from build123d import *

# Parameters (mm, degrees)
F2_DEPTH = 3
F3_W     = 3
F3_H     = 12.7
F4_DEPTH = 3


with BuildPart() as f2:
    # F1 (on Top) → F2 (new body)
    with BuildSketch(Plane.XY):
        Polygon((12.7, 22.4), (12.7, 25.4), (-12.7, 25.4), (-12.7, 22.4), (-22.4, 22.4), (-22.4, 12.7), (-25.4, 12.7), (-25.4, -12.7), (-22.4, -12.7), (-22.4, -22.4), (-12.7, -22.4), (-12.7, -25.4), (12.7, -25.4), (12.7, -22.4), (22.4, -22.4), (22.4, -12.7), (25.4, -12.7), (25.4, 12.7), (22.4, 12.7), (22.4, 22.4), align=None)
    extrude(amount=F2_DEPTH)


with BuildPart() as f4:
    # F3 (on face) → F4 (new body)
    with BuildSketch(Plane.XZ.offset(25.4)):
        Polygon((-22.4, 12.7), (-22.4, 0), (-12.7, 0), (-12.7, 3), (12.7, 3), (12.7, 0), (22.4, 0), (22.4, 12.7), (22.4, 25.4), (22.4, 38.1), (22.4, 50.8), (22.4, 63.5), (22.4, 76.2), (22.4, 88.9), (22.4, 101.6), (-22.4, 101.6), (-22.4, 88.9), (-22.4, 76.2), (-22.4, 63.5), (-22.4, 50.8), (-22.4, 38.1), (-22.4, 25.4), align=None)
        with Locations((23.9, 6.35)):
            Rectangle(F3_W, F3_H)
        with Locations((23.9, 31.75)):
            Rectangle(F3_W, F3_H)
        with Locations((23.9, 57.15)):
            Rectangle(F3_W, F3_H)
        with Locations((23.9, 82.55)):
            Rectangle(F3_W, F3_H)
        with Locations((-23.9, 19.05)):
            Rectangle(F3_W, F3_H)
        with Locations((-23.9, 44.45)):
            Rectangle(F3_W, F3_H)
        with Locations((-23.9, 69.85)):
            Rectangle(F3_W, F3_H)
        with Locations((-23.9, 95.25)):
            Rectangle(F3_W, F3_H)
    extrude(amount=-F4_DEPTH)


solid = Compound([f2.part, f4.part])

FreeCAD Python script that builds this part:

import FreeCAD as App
import Part
import Sketcher
from FreeCAD import Vector
Q = App.Units.Quantity

doc = App.newDocument("Part")
body = doc.addObject("PartDesign::Body", "Body")

sketch1 = doc.addObject("Sketcher::SketchObject", "Sketch")
body.addObject(sketch1)
sketch1.AttachmentSupport = (doc.XY_Plane, [""])
sketch1.MapMode = "FlatFace"
sketch1.addGeometry([
    Part.LineSegment(Vector(12.7, 22.4, 0), Vector(12.7, 25.4, 0)),
    Part.LineSegment(Vector(12.7, 25.4, 0), Vector(-12.7, 25.4, 0)),
    Part.LineSegment(Vector(-12.7, 25.4, 0), Vector(-12.7, 22.4, 0)),
    Part.LineSegment(Vector(-12.7, 22.4, 0), Vector(-22.4, 22.4, 0)),
    Part.LineSegment(Vector(-22.4, 22.4, 0), Vector(-22.4, 12.7, 0)),
    Part.LineSegment(Vector(-22.4, 12.7, 0), Vector(-25.4, 12.7, 0)),
    Part.LineSegment(Vector(-25.4, 12.7, 0), Vector(-25.4, -12.7, 0)),
    Part.LineSegment(Vector(-25.4, -12.7, 0), Vector(-22.4, -12.7, 0)),
    Part.LineSegment(Vector(-22.4, -12.7, 0), Vector(-22.4, -22.4, 0)),
    Part.LineSegment(Vector(-22.4, -22.4, 0), Vector(-12.7, -22.4, 0)),
    Part.LineSegment(Vector(-12.7, -22.4, 0), Vector(-12.7, -25.4, 0)),
    Part.LineSegment(Vector(-12.7, -25.4, 0), Vector(12.7, -25.4, 0)),
    Part.LineSegment(Vector(12.7, -25.4, 0), Vector(12.7, -22.4, 0)),
    Part.LineSegment(Vector(12.7, -22.4, 0), Vector(22.4, -22.4, 0)),
    Part.LineSegment(Vector(22.4, -22.4, 0), Vector(22.4, -12.7, 0)),
    Part.LineSegment(Vector(22.4, -12.7, 0), Vector(25.4, -12.7, 0)),
    Part.LineSegment(Vector(25.4, -12.7, 0), Vector(25.4, 12.7, 0)),
    Part.LineSegment(Vector(25.4, 12.7, 0), Vector(22.4, 12.7, 0)),
    Part.LineSegment(Vector(22.4, 12.7, 0), Vector(22.4, 22.4, 0)),
    Part.LineSegment(Vector(22.4, 22.4, 0), Vector(12.7, 22.4, 0)),
], False)
sketch1.addConstraint([
    Sketcher.Constraint("Coincident", 0, 2, 1, 1),
    Sketcher.Constraint("Coincident", 1, 2, 2, 1),
    Sketcher.Constraint("Coincident", 2, 2, 3, 1),
    Sketcher.Constraint("Coincident", 3, 2, 4, 1),
    Sketcher.Constraint("Coincident", 4, 2, 5, 1),
    Sketcher.Constraint("Coincident", 5, 2, 6, 1),
    Sketcher.Constraint("Coincident", 6, 2, 7, 1),
    Sketcher.Constraint("Coincident", 7, 2, 8, 1),
    Sketcher.Constraint("Coincident", 8, 2, 9, 1),
    Sketcher.Constraint("Coincident", 9, 2, 10, 1),
    Sketcher.Constraint("Coincident", 10, 2, 11, 1),
    Sketcher.Constraint("Coincident", 11, 2, 12, 1),
    Sketcher.Constraint("Coincident", 12, 2, 13, 1),
    Sketcher.Constraint("Coincident", 13, 2, 14, 1),
    Sketcher.Constraint("Coincident", 14, 2, 15, 1),
    Sketcher.Constraint("Coincident", 15, 2, 16, 1),
    Sketcher.Constraint("Coincident", 16, 2, 17, 1),
    Sketcher.Constraint("Coincident", 17, 2, 18, 1),
    Sketcher.Constraint("Coincident", 18, 2, 19, 1),
    Sketcher.Constraint("Coincident", 19, 2, 0, 1),
    Sketcher.Constraint("Vertical", 0),
    Sketcher.Constraint("Horizontal", 1),
    Sketcher.Constraint("Vertical", 2),
    Sketcher.Constraint("Horizontal", 3),
    Sketcher.Constraint("Vertical", 4),
    Sketcher.Constraint("Horizontal", 5),
    Sketcher.Constraint("Vertical", 6),
    Sketcher.Constraint("Horizontal", 7),
    Sketcher.Constraint("Vertical", 8),
    Sketcher.Constraint("Horizontal", 9),
    Sketcher.Constraint("Vertical", 10),
    Sketcher.Constraint("Horizontal", 11),
    Sketcher.Constraint("Vertical", 12),
    Sketcher.Constraint("Horizontal", 13),
    Sketcher.Constraint("Vertical", 14),
    Sketcher.Constraint("Horizontal", 15),
    Sketcher.Constraint("Vertical", 16),
    Sketcher.Constraint("Horizontal", 17),
    Sketcher.Constraint("Vertical", 18),
    Sketcher.Constraint("Horizontal", 19),
    Sketcher.Constraint("Symmetric", 0, 2, 10, 2, -1, 1),
    Sketcher.Constraint("Symmetric", 2, 2, 12, 2, -1, 1),
    Sketcher.Constraint("Symmetric", 4, 2, 14, 2, -1, 1),
    Sketcher.Constraint("Symmetric", 6, 2, 16, 2, -1, 1),
    Sketcher.Constraint("Symmetric", 8, 2, 18, 2, -1, 1),
    Sketcher.Constraint("Symmetric", 9, 2, 12, 2, -2),
    Sketcher.Constraint("Symmetric", 7, 2, 14, 2, -2),
    Sketcher.Constraint("Equal", 17, 0),
    Sketcher.Constraint("Equal", 19, 4),
    Sketcher.Constraint("Equal", 11, 6),
    Sketcher.Constraint("DistanceX", 5, 2, 5, 1, Q("3 mm")),
    Sketcher.Constraint("DistanceX", 1, 2, 1, 1, Q("25.4 mm")),
    Sketcher.Constraint("DistanceX", 3, 2, 3, 1, Q("9.7 mm")),
])
pad1 = doc.addObject("PartDesign::Pad", "Pad")
body.addObject(pad1)
pad1.Profile = sketch1
pad1.Length = 3
body2 = doc.addObject("PartDesign::Body", "Body001")

sketch2 = doc.addObject("Sketcher::SketchObject", "Sketch001")
body2.addObject(sketch2)
sketch2.AttachmentSupport = (doc.getObject("XZ_Plane001"), [""])
sketch2.MapMode = "FlatFace"
sketch2.AttachmentOffset = App.Placement(Vector(0, 0, 25.4), App.Rotation())
sketch2.addGeometry([
    Part.LineSegment(Vector(-22.4, 0, 0), Vector(-12.7, 0, 0)),
    Part.LineSegment(Vector(-12.7, 0, 0), Vector(-12.7, 3, 0)),
    Part.LineSegment(Vector(-12.7, 3, 0), Vector(12.7, 3, 0)),
    Part.LineSegment(Vector(12.7, 3, 0), Vector(12.7, 0, 0)),
    Part.LineSegment(Vector(12.7, 0, 0), Vector(25.4, 0, 0)),
    Part.LineSegment(Vector(25.4, 0, 0), Vector(25.4, 12.7, 0)),
    Part.LineSegment(Vector(25.4, 12.7, 0), Vector(22.4, 12.7, 0)),
    Part.LineSegment(Vector(22.4, 12.7, 0), Vector(22.4, 25.4, 0)),
    Part.LineSegment(Vector(22.4, 25.4, 0), Vector(25.4, 25.4, 0)),
    Part.LineSegment(Vector(25.4, 25.4, 0), Vector(25.4, 38.1, 0)),
    Part.LineSegment(Vector(25.4, 38.1, 0), Vector(22.4, 38.1, 0)),
    Part.LineSegment(Vector(22.4, 38.1, 0), Vector(22.4, 50.8, 0)),
    Part.LineSegment(Vector(22.4, 50.8, 0), Vector(25.4, 50.8, 0)),
    Part.LineSegment(Vector(25.4, 50.8, 0), Vector(25.4, 63.5, 0)),
    Part.LineSegment(Vector(25.4, 63.5, 0), Vector(22.4, 63.5, 0)),
    Part.LineSegment(Vector(22.4, 63.5, 0), Vector(22.4, 76.2, 0)),
    Part.LineSegment(Vector(22.4, 76.2, 0), Vector(25.4, 76.2, 0)),
    Part.LineSegment(Vector(25.4, 76.2, 0), Vector(25.4, 88.9, 0)),
    Part.LineSegment(Vector(25.4, 88.9, 0), Vector(22.4, 88.9, 0)),
    Part.LineSegment(Vector(22.4, 88.9, 0), Vector(22.4, 101.6, 0)),
    Part.LineSegment(Vector(22.4, 101.6, 0), Vector(-25.4, 101.6, 0)),
    Part.LineSegment(Vector(-25.4, 101.6, 0), Vector(-25.4, 88.9, 0)),
    Part.LineSegment(Vector(-25.4, 88.9, 0), Vector(-22.4, 88.9, 0)),
    Part.LineSegment(Vector(-22.4, 88.9, 0), Vector(-22.4, 76.2, 0)),
    Part.LineSegment(Vector(-22.4, 76.2, 0), Vector(-25.4, 76.2, 0)),
    Part.LineSegment(Vector(-25.4, 76.2, 0), Vector(-25.4, 63.5, 0)),
    Part.LineSegment(Vector(-25.4, 63.5, 0), Vector(-22.4, 63.5, 0)),
    Part.LineSegment(Vector(-22.4, 63.5, 0), Vector(-22.4, 50.8, 0)),
    Part.LineSegment(Vector(-22.4, 50.8, 0), Vector(-25.4, 50.8, 0)),
    Part.LineSegment(Vector(-25.4, 50.8, 0), Vector(-25.4, 38.1, 0)),
    Part.LineSegment(Vector(-25.4, 38.1, 0), Vector(-22.4, 38.1, 0)),
    Part.LineSegment(Vector(-22.4, 38.1, 0), Vector(-22.4, 25.4, 0)),
    Part.LineSegment(Vector(-22.4, 25.4, 0), Vector(-25.4, 25.4, 0)),
    Part.LineSegment(Vector(-25.4, 25.4, 0), Vector(-25.4, 12.7, 0)),
    Part.LineSegment(Vector(-25.4, 12.7, 0), Vector(-22.4, 12.7, 0)),
    Part.LineSegment(Vector(-22.4, 12.7, 0), Vector(-22.4, 0, 0)),
], False)
sketch2.addConstraint([
    Sketcher.Constraint("Coincident", 0, 2, 1, 1),
    Sketcher.Constraint("Coincident", 1, 2, 2, 1),
    Sketcher.Constraint("Coincident", 2, 2, 3, 1),
    Sketcher.Constraint("Coincident", 3, 2, 4, 1),
    Sketcher.Constraint("Coincident", 4, 2, 5, 1),
    Sketcher.Constraint("Coincident", 5, 2, 6, 1),
    Sketcher.Constraint("Coincident", 6, 2, 7, 1),
    Sketcher.Constraint("Coincident", 7, 2, 8, 1),
    Sketcher.Constraint("Coincident", 8, 2, 9, 1),
    Sketcher.Constraint("Coincident", 9, 2, 10, 1),
    Sketcher.Constraint("Coincident", 10, 2, 11, 1),
    Sketcher.Constraint("Coincident", 11, 2, 12, 1),
    Sketcher.Constraint("Coincident", 12, 2, 13, 1),
    Sketcher.Constraint("Coincident", 13, 2, 14, 1),
    Sketcher.Constraint("Coincident", 14, 2, 15, 1),
    Sketcher.Constraint("Coincident", 15, 2, 16, 1),
    Sketcher.Constraint("Coincident", 16, 2, 17, 1),
    Sketcher.Constraint("Coincident", 17, 2, 18, 1),
    Sketcher.Constraint("Coincident", 18, 2, 19, 1),
    Sketcher.Constraint("Coincident", 19, 2, 20, 1),
    Sketcher.Constraint("Coincident", 20, 2, 21, 1),
    Sketcher.Constraint("Coincident", 21, 2, 22, 1),
    Sketcher.Constraint("Coincident", 22, 2, 23, 1),
    Sketcher.Constraint("Coincident", 23, 2, 24, 1),
    Sketcher.Constraint("Coincident", 24, 2, 25, 1),
    Sketcher.Constraint("Coincident", 25, 2, 26, 1),
    Sketcher.Constraint("Coincident", 26, 2, 27, 1),
    Sketcher.Constraint("Coincident", 27, 2, 28, 1),
    Sketcher.Constraint("Coincident", 28, 2, 29, 1),
    Sketcher.Constraint("Coincident", 29, 2, 30, 1),
    Sketcher.Constraint("Coincident", 30, 2, 31, 1),
    Sketcher.Constraint("Coincident", 31, 2, 32, 1),
    Sketcher.Constraint("Coincident", 32, 2, 33, 1),
    Sketcher.Constraint("Coincident", 33, 2, 34, 1),
    Sketcher.Constraint("Coincident", 34, 2, 35, 1),
    Sketcher.Constraint("Coincident", 35, 2, 0, 1),
    Sketcher.Constraint("Horizontal", 0),
    Sketcher.Constraint("Vertical", 1),
    Sketcher.Constraint("Horizontal", 2),
    Sketcher.Constraint("Vertical", 3),
    Sketcher.Constraint("Horizontal", 4),
    Sketcher.Constraint("Vertical", 5),
    Sketcher.Constraint("Horizontal", 6),
    Sketcher.Constraint("Vertical", 7),
    Sketcher.Constraint("Horizontal", 8),
    Sketcher.Constraint("Vertical", 9),
    Sketcher.Constraint("Horizontal", 10),
    Sketcher.Constraint("Vertical", 11),
    Sketcher.Constraint("Horizontal", 12),
    Sketcher.Constraint("Vertical", 13),
    Sketcher.Constraint("Horizontal", 14),
    Sketcher.Constraint("Vertical", 15),
    Sketcher.Constraint("Horizontal", 16),
    Sketcher.Constraint("Vertical", 17),
    Sketcher.Constraint("Horizontal", 18),
    Sketcher.Constraint("Vertical", 19),
    Sketcher.Constraint("Horizontal", 20),
    Sketcher.Constraint("Vertical", 21),
    Sketcher.Constraint("Horizontal", 22),
    Sketcher.Constraint("Vertical", 23),
    Sketcher.Constraint("Horizontal", 24),
    Sketcher.Constraint("Vertical", 25),
    Sketcher.Constraint("Horizontal", 26),
    Sketcher.Constraint("Vertical", 27),
    Sketcher.Constraint("Horizontal", 28),
    Sketcher.Constraint("Vertical", 29),
    Sketcher.Constraint("Horizontal", 30),
    Sketcher.Constraint("Vertical", 31),
    Sketcher.Constraint("Horizontal", 32),
    Sketcher.Constraint("Vertical", 33),
    Sketcher.Constraint("Horizontal", 34),
    Sketcher.Constraint("Vertical", 35),
    Sketcher.Constraint("Symmetric", 0, 2, 3, 2, -1, 1),
    Sketcher.Constraint("Symmetric", 17, 2, 21, 2, -2),
    Sketcher.Constraint("Symmetric", 15, 2, 23, 2, -2),
    Sketcher.Constraint("Symmetric", 13, 2, 25, 2, -2),
    Sketcher.Constraint("Symmetric", 11, 2, 27, 2, -2),
    Sketcher.Constraint("Symmetric", 9, 2, 29, 2, -2),
    Sketcher.Constraint("Symmetric", 7, 2, 31, 2, -2),
    Sketcher.Constraint("Symmetric", 5, 2, 33, 2, -2),
    Sketcher.Constraint("PointOnObject", 0, 2, -1),
    Sketcher.Constraint("Vertical", 5, 2, 8, 2),
    Sketcher.Constraint("Vertical", 7, 2, 10, 2),
    Sketcher.Constraint("Vertical", 9, 2, 12, 2),
    Sketcher.Constraint("Vertical", 11, 2, 14, 2),
    Sketcher.Constraint("Vertical", 13, 2, 16, 2),
    Sketcher.Constraint("Vertical", 15, 2, 18, 2),
    Sketcher.Constraint("Vertical", 31, 2, 34, 2),
    Sketcher.Constraint("Equal", 34, 1),
    Sketcher.Constraint("Equal", 4, 5),
    Sketcher.Constraint("Equal", 5, 7),
    Sketcher.Constraint("Equal", 7, 9),
    Sketcher.Constraint("Equal", 9, 11),
    Sketcher.Constraint("Equal", 11, 13),
    Sketcher.Constraint("Equal", 13, 15),
    Sketcher.Constraint("Equal", 15, 17),
    Sketcher.Constraint("Equal", 17, 19),
    Sketcher.Constraint("DistanceX", 6, 2, 6, 1, Q("3 mm")),
    Sketcher.Constraint("DistanceX", 0, 1, 0, 2, Q("9.7 mm")),
    Sketcher.Constraint("DistanceX", 2, 1, 2, 2, Q("25.4 mm")),
])
pad2 = doc.addObject("PartDesign::Pad", "Pad001")
body2.addObject(pad2)
pad2.Profile = sketch2
pad2.Length = 3
pad2.Reversed = True

doc.recompute()
